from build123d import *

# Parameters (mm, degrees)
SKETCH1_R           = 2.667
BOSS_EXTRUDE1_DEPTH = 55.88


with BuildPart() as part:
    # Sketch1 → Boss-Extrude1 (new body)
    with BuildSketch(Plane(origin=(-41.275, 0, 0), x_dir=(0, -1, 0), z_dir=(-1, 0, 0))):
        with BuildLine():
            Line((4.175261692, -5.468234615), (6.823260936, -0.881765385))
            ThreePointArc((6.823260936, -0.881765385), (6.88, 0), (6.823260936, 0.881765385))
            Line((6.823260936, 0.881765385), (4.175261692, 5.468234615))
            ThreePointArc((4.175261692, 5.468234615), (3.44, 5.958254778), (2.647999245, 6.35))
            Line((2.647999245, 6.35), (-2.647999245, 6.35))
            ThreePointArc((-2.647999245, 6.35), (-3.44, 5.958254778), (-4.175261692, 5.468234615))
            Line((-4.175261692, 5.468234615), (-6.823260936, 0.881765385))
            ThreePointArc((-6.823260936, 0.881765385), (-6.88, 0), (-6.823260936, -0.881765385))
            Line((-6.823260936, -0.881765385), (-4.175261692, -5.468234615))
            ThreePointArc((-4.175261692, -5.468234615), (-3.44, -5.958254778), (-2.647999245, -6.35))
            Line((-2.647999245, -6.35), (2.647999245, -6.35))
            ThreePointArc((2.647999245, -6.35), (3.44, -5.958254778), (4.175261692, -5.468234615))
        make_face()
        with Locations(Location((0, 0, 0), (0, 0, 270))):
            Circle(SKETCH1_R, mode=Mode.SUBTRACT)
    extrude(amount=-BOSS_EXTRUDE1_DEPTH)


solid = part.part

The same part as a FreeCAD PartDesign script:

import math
import FreeCAD as App
import Part
import Sketcher

V = App.Vector
Q = App.Units.Quantity

doc = App.newDocument("Part")
params = doc.addObject("Spreadsheet::Sheet", "Params")
for row, (alias, value) in enumerate([
    ("sketch1_diameter", "0.21 in"),
    ("pad1_length", "2.2 in"),
], start=1):
    params.set(f"A{row}", alias)
    params.set(f"B{row}", "=" + value)
    params.setAlias(f"B{row}", alias)

body = doc.addObject("PartDesign::Body", "Body")

sketch1 = body.newObject("Sketcher::SketchObject", "Sketch")
sketch1.AttachmentSupport = (doc.getObject("YZ_Plane"), [""])
sketch1.MapMode = "FlatFace"
sketch1.AttachmentOffset = App.Placement(V(0, 0, -1.625 * 25.4), App.Rotation())
sketch1.addGeometry(Part.LineSegment(V(-4.175262, -5.468235, 0), V(-6.823261, -0.881765, 0)), False)
sketch1.addGeometry(Part.ArcOfCircle(Part.Circle(V(0, 0, 0), V(0, 0, 1), 6.88), math.radians(172.636515), math.radians(187.363485)), False)
sketch1.addGeometry(Part.LineSegment(V(-6.823261, 0.881765, 0), V(-4.175262, 5.468235, 0)), False)
sketch1.addGeometry(Part.ArcOfCircle(Part.Circle(V(0, 0, 0), V(0, 0, 1), 6.88), math.radians(112.636515), math.radians(127.363485)), False)
sketch1.addGeometry(Part.LineSegment(V(-2.647999, 6.35, 0), V(2.647999, 6.35, 0)), False)
sketch1.addGeometry(Part.ArcOfCircle(Part.Circle(V(0, 0, 0), V(0, 0, 1), 6.88), math.radians(52.636515), math.radians(67.363485)), False)
sketch1.addGeometry(Part.LineSegment(V(4.175262, 5.468235, 0), V(6.823261, 0.881765, 0)), False)
sketch1.addGeometry(Part.ArcOfCircle(Part.Circle(V(0, 0, 0), V(0, 0, 1), 6.88), math.radians(-7.363485), math.radians(7.363485)), False)
sketch1.addGeometry(Part.LineSegment(V(6.823261, -0.881765, 0), V(4.175262, -5.468235, 0)), False)
sketch1.addGeometry(Part.ArcOfCircle(Part.Circle(V(0, 0, 0), V(0, 0, 1), 6.88), math.radians(-67.363485), math.radians(-52.636515)), False)
sketch1.addGeometry(Part.LineSegment(V(2.647999, -6.35, 0), V(-2.647999, -6.35, 0)), False)
sketch1.addGeometry(Part.ArcOfCircle(Part.Circle(V(0, 0, 0), V(0, 0, 1), 6.88), math.radians(-127.363485), math.radians(-112.636515)), False)
sketch1.addGeometry(Part.Circle(V(0, 0, 0), V(0, 0, 1), 2.667), False)
sketch1.addConstraint(Sketcher.Constraint("Coincident", 0, 2, 1, 2))
sketch1.addConstraint(Sketcher.Constraint("Coincident", 1, 1, 2, 1))
sketch1.addConstraint(Sketcher.Constraint("Coincident", 2, 2, 3, 2))
sketch1.addConstraint(Sketcher.Constraint("Coincident", 3, 1, 4, 1))
sketch1.addConstraint(Sketcher.Constraint("Coincident", 4, 2, 5, 2))
sketch1.addConstraint(Sketcher.Constraint("Coincident", 5, 1, 6, 1))
sketch1.addConstraint(Sketcher.Constraint("Coincident", 6, 2, 7, 2))
sketch1.addConstraint(Sketcher.Constraint("Coincident", 7, 1, 8, 1))
sketch1.addConstraint(Sketcher.Constraint("Coincident", 8, 2, 9, 2))
sketch1.addConstraint(Sketcher.Constraint("Coincident", 9, 1, 10, 1))
sketch1.addConstraint(Sketcher.Constraint("Coincident", 10, 2, 11, 2))
sketch1.addConstraint(Sketcher.Constraint("Coincident", 11, 1, 0, 1))
sketch1.addConstraint(Sketcher.Constraint("Horizontal", 4))
sketch1.addConstraint(Sketcher.Constraint("Horizontal", 10))
sketch1.addConstraint(Sketcher.Constraint("Coincident", 1, 3, -1, 1))
sketch1.addConstraint(Sketcher.Constraint("Coincident", 3, 3, -1, 1))
sketch1.addConstraint(Sketcher.Constraint("Coincident", 5, 3, -1, 1))
sketch1.addConstraint(Sketcher.Constraint("Coincident", 7, 3, -1, 1))
sketch1.addConstraint(Sketcher.Constraint("Coincident", 9, 3, -1, 1))
sketch1.addConstraint(Sketcher.Constraint("Coincident", 11, 3, -1, 1))
sketch1.addConstraint(Sketcher.Constraint("Coincident", 12, 3, -1, 1))
sketch1.addConstraint(Sketcher.Constraint("Equal", 1, 3))
sketch1.addConstraint(Sketcher.Constraint("Equal", 3, 5))
sketch1.addConstraint(Sketcher.Constraint("Equal", 5, 7))
sketch1.addConstraint(Sketcher.Constraint("Equal", 7, 9))
sketch1.addConstraint(Sketcher.Constraint("Equal", 9, 11))
sketch1.addConstraint(Sketcher.Constraint("Parallel", 0, 6))
sketch1.addConstraint(Sketcher.Constraint("Parallel", 2, 8))
sketch1.addConstraint(Sketcher.Constraint("Horizontal", 2, 2, 5, 1))
sketch1.addConstraint(Sketcher.Constraint("Horizontal", 1, 1, 6, 2))
sketch1.addConstraint(Sketcher.Constraint("Horizontal", 0, 2, 7, 1))
sketch1.addConstraint(Sketcher.Constraint("Vertical", 0, 2, 1, 1))
sketch1.addConstraint(Sketcher.Constraint("Vertical", 4, 2, 9, 1))
sketch1.addConstraint(Sketcher.Constraint("Diameter", 12, Q("0.21 in")))
sketch1.addConstraint(Sketcher.Constraint("Angle", 0, Q("120 deg")))
sketch1.addConstraint(Sketcher.Constraint("DistanceY", -1, 1, 3, 1, Q("0.25 in")))
sketch1.addConstraint(Sketcher.Constraint("Radius", 1, 6.88))
sketch1.addConstraint(Sketcher.Constraint("DistanceY", 0, 2, 2, 2, Q("0.25 in")))
sketch1.setExpression("Constraints[33]", "Params.sketch1_diameter")
pad1 = body.newObject("PartDesign::Pad", "Pad")
pad1.Profile = sketch1
pad1.setExpression("Length", "Params.pad1_length")

doc.recompute()
